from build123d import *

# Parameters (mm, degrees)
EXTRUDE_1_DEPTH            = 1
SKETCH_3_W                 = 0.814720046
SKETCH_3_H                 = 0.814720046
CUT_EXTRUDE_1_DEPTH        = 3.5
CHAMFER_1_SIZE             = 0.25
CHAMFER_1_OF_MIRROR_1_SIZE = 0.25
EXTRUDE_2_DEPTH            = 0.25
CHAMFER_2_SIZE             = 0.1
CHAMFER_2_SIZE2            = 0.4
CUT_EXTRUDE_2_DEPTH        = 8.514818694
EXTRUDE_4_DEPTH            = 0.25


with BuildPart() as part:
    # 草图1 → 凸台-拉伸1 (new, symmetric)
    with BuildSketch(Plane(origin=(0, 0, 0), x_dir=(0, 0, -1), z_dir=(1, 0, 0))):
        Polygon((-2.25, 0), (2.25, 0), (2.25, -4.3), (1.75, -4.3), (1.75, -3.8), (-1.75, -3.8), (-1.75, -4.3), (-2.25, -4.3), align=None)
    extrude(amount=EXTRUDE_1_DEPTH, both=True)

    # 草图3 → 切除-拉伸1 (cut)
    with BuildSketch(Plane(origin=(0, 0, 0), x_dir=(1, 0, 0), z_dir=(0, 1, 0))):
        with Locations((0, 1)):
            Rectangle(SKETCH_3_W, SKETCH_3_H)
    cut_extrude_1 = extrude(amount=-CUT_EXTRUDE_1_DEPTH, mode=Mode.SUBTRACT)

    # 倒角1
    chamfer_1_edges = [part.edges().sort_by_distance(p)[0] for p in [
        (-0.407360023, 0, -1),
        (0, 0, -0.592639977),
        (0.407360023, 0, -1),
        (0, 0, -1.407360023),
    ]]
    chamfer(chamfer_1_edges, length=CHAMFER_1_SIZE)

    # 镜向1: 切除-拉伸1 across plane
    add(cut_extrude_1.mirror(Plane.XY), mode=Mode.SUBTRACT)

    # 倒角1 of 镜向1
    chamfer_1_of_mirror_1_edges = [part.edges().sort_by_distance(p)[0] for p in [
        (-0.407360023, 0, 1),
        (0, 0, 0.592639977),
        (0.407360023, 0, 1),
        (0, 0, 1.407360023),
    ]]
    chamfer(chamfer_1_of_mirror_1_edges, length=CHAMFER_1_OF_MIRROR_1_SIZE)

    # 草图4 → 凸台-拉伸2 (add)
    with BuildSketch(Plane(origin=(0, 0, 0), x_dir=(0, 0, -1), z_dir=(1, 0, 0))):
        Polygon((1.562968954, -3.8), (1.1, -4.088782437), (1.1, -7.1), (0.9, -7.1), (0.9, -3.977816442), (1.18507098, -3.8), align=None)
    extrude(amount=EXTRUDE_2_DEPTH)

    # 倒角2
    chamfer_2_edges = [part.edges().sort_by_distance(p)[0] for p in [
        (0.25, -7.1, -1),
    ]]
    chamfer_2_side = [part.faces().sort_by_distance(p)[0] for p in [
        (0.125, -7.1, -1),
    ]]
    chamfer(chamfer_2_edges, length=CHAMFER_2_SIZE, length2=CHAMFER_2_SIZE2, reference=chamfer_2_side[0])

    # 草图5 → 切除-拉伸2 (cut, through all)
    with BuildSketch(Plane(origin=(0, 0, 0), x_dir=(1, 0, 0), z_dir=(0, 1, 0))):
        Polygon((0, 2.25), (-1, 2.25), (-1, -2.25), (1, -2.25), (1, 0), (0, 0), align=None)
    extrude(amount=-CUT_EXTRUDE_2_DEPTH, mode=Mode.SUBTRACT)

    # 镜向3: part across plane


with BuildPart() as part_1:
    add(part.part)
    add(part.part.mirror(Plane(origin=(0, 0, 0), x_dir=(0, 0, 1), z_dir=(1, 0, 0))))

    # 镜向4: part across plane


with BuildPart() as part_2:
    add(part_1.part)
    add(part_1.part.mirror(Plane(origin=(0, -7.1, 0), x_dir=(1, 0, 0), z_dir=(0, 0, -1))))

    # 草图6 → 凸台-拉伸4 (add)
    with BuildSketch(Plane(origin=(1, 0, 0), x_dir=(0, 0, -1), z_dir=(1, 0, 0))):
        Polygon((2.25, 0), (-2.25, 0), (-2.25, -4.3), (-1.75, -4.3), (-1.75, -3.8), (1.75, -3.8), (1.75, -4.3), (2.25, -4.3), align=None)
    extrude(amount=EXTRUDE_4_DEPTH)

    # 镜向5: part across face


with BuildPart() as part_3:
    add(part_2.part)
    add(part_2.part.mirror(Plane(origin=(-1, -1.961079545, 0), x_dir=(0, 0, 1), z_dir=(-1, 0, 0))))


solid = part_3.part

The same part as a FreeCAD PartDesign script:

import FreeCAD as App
import Part
import Sketcher

V = App.Vector
Q = App.Units.Quantity


def edges_at(feature, points):
    """Names of the edges that pass closest to the given points."""
    edges = feature.Shape.Edges
    near = lambda p: min(range(len(edges)), key=lambda i: edges[i].distToShape(Part.Vertex(*p))[0])
    return sorted({f"Edge{near(p) + 1}" for p in points})

doc = App.newDocument("Part")
body = doc.addObject("PartDesign::Body", "Body")

# Sketch on YZ plane
sketch1 = doc.addObject("Sketcher::SketchObject", "Sketch")
body.addObject(sketch1)
sketch1.AttachmentSupport = (doc.YZ_Plane, [""])
sketch1.MapMode = "FlatFace"
sketch1.addGeometry([
    Part.LineSegment(V(0, -2.2, 0), V(0, 2.2, 0)),  # 0
    Part.LineSegment(V(0, 2.2, 0), V(-4.3, 2.2, 0)),  # 1
    Part.LineSegment(V(-4.3, 2.2, 0), V(-4.3, 1.8, 0)),  # 2
    Part.LineSegment(V(-4.3, 1.8, 0), V(-3.8, 1.8, 0)),  # 3
    Part.LineSegment(V(-3.8, 1.8, 0), V(-3.8, -1.8, 0)),  # 4
    Part.LineSegment(V(-3.8, -1.8, 0), V(-4.3, -1.8, 0)),  # 5
    Part.LineSegment(V(-4.3, -1.8, 0), V(-4.3, -2.2, 0)),  # 6
    Part.LineSegment(V(-4.3, -2.2, 0), V(0, -2.2, 0)),  # 7
], False)
sketch1.addConstraint([
    Sketcher.Constraint("Coincident", 0, 2, 1, 1),
    Sketcher.Constraint("Coincident", 1, 2, 2, 1),
    Sketcher.Constraint("Coincident", 2, 2, 3, 1),
    Sketcher.Constraint("Coincident", 3, 2, 4, 1),
    Sketcher.Constraint("Coincident", 4, 2, 5, 1),
    Sketcher.Constraint("Coincident", 5, 2, 6, 1),
    Sketcher.Constraint("Coincident", 6, 2, 7, 1),
    Sketcher.Constraint("Coincident", 7, 2, 0, 1),
    Sketcher.Constraint("Vertical", 0),
    Sketcher.Constraint("Horizontal", 1),
    Sketcher.Constraint("Vertical", 2),
    Sketcher.Constraint("Horizontal", 3),
    Sketcher.Constraint("Vertical", 4),
    Sketcher.Constraint("Horizontal", 5),
    Sketcher.Constraint("Vertical", 6),
    Sketcher.Constraint("Horizontal", 7),
    Sketcher.Constraint("Symmetric", 0, 2, 7, 2, -1, 1),
    Sketcher.Constraint("Symmetric", 2, 2, 5, 2, -1),
    Sketcher.Constraint("Equal", 5, 2),
    Sketcher.Constraint("DistanceX", 1, 2, 1, 1, Q("4.3 mm")),
    Sketcher.Constraint("DistanceX", 3, 1, 3, 2, Q("0.5 mm")),
    Sketcher.Constraint("DistanceY", 0, 1, 0, 2, Q("4.5 mm")),
])
pad1 = doc.addObject("PartDesign::Pad", "Pad")
body.addObject(pad1)
pad1.Profile = sketch1
pad1.Length = 2
pad1.Midplane = True

# Sketch on XZ plane
sketch2 = doc.addObject("Sketcher::SketchObject", "Sketch001")
body.addObject(sketch2)
sketch2.AttachmentSupport = (doc.XZ_Plane, [""])
sketch2.MapMode = "FlatFace"
sketch2.addGeometry([
    Part.LineSegment(V(-0.4, -1.4, 0), V(-0.4, -0.6, 0)),
    Part.LineSegment(V(-0.4, -0.6, 0), V(0.4, -0.6, 0)),
    Part.LineSegment(V(0.4, -0.6, 0), V(0.4, -1.4, 0)),
    Part.LineSegment(V(0.4, -1.4, 0), V(-0.4, -1.4, 0)),
], False)
sketch2.addConstraint([
    Sketcher.Constraint("Coincident", 0, 2, 1, 1),
    Sketcher.Constraint("Coincident", 1, 2, 2, 1),
    Sketcher.Constraint("Coincident", 2, 2, 3, 1),
    Sketcher.Constraint("Coincident", 3, 2, 0, 1),
    Sketcher.Constraint("Vertical", 0),
    Sketcher.Constraint("Horizontal", 1),
    Sketcher.Constraint("Vertical", 2),
    Sketcher.Constraint("Horizontal", 3),
    Sketcher.Constraint("Equal", 3, 0),
    Sketcher.Constraint("DistanceX", 1, 1, 1, 2, Q("0.81472 mm")),
    Sketcher.Constraint("DistanceX", 0, 2, -1, 1, Q("0.40736 mm")),
    Sketcher.Constraint("DistanceY", 0, 2, -1, 1, Q("0.59264 mm")),
])
pocket1 = doc.addObject("PartDesign::Pocket", "Pocket")
body.addObject(pocket1)
pocket1.Profile = sketch2
pocket1.Length = 3.5
pocket1.Reversed = True
doc.recompute()

chamfer = doc.addObject("PartDesign::Chamfer", "Chamfer")
body.addObject(chamfer)
chamfer.Base = (pocket1, edges_at(pocket1, [
    (-0.407, 0, -1),
    (0, 0, -0.593),
    (0.407, 0, -1),
    (0, 0, -1.407),
]))
chamfer.Size = 0.25
doc.recompute()

mirrored = doc.addObject("PartDesign::Mirrored", "Mirrored")
body.addObject(mirrored)
mirrored.Originals = [pocket1]
mirrored.MirrorPlane = (doc.XY_Plane, [""])
body.Tip = mirrored
doc.recompute()

chamfer2 = doc.addObject("PartDesign::Chamfer", "Chamfer001")
body.addObject(chamfer2)
chamfer2.Base = (mirrored, edges_at(mirrored, [
    (-0.407, 0, 1),
    (0, 0, 0.593),
    (0.407, 0, 1),
    (0, 0, 1.407),
]))
chamfer2.Size = 0.25

# Sketch on YZ plane
sketch3 = doc.addObject("Sketcher::SketchObject", "Sketch002")
body.addObject(sketch3)
sketch3.AttachmentSupport = (doc.YZ_Plane, [""])
sketch3.MapMode = "FlatFace"
sketch3.addGeometry([
    Part.LineSegment(V(-4.09, -1.1, 0), V(-3.8, -1.56, 0)),  # 0
    Part.LineSegment(V(-3.8, -1.56, 0), V(-3.8, -1.19, 0)),  # 1
    Part.LineSegment(V(-3.8, -1.19, 0), V(-3.98, -0.9, 0)),  # 2
    Part.LineSegment(V(-3.98, -0.9, 0), V(-7.1, -0.9, 0)),  # 3
    Part.LineSegment(V(-7.1, -0.9, 0), V(-7.1, -1.1, 0)),  # 4
    Part.LineSegment(V(-7.1, -1.1, 0), V(-4.09, -1.1, 0)),  # 5
], False)
sketch3.addConstraint([
    Sketcher.Constraint("Coincident", 0, 2, 1, 1),
    Sketcher.Constraint("Coincident", 1, 2, 2, 1),
    Sketcher.Constraint("Coincident", 2, 2, 3, 1),
    Sketcher.Constraint("Coincident", 3, 2, 4, 1),
    Sketcher.Constraint("Coincident", 4, 2, 5, 1),
    Sketcher.Constraint("Coincident", 5, 2, 0, 1),
    Sketcher.Constraint("Vertical", 1),
    Sketcher.Constraint("Horizontal", 3),
    Sketcher.Constraint("Vertical", 4),
    Sketcher.Constraint("Horizontal", 5),
    Sketcher.Constraint("Parallel", 0, 2),
    Sketcher.Constraint("DistanceY", 4, 2, 4, 1, Q("0.2 mm")),
    Sketcher.Constraint("DistanceX", 0, 2, -1, 1, Q("3.8 mm")),
    Sketcher.Constraint("DistanceY", 2, 2, -1, 1, Q("0.9 mm")),
    Sketcher.Constraint("DistanceX", 3, 2, -1, 1, Q("7.1 mm")),
    Sketcher.Constraint("Distance", 0, Q("0.545651 mm")),
    Sketcher.Constraint("DistanceX", 3, 2, 3, 1, Q("3.122184 mm")),
    Sketcher.Constraint("DistanceX", 5, 1, 5, 2, Q("3.011218 mm")),
])
pad2 = doc.addObject("PartDesign::Pad", "Pad001")
body.addObject(pad2)
pad2.Profile = sketch3
pad2.Length = 0.25
doc.recompute()

chamfer3 = doc.addObject("PartDesign::Chamfer", "Chamfer002")
body.addObject(chamfer3)
chamfer3.Base = (pad2, edges_at(pad2, [(0.25, -7.1, -1)]))
chamfer3.ChamferType = "Two distances"
chamfer3.Size = 0.1
chamfer3.Size2 = 0.4
chamfer3.FlipDirection = True

# Sketch on XZ plane
sketch4 = doc.addObject("Sketcher::SketchObject", "Sketch003")
body.addObject(sketch4)
sketch4.AttachmentSupport = (doc.XZ_Plane, [""])
sketch4.MapMode = "FlatFace"
sketch4.addGeometry([
    Part.LineSegment(V(0, -2.2, 0), V(-1, -2.2, 0)),  # 0
    Part.LineSegment(V(-1, -2.2, 0), V(-1, 2.2, 0)),  # 1
    Part.LineSegment(V(-1, 2.2, 0), V(1, 2.2, 0)),  # 2
    Part.LineSegment(V(1, 2.2, 0), V(1, 0, 0)),  # 3
    Part.LineSegment(V(1, 0, 0), V(0, 0, 0)),  # 4
    Part.LineSegment(V(0, 0, 0), V(0, -2.2, 0)),  # 5
], False)
sketch4.addConstraint([
    Sketcher.Constraint("Coincident", 0, 2, 1, 1),
    Sketcher.Constraint("Coincident", 1, 2, 2, 1),
    Sketcher.Constraint("Coincident", 2, 2, 3, 1),
    Sketcher.Constraint("Coincident", 3, 2, 4, 1),
    Sketcher.Constraint("Coincident", 4, 2, 5, 1),
    Sketcher.Constraint("Coincident", 5, 2, 0, 1),
    Sketcher.Constraint("Horizontal", 0),
    Sketcher.Constraint("Vertical", 1),
    Sketcher.Constraint("Horizontal", 2),
    Sketcher.Constraint("Vertical", 3),
    Sketcher.Constraint("Horizontal", 4),
    Sketcher.Constraint("Vertical", 5),
    Sketcher.Constraint("Coincident", 4, 2, -1, 1),
    Sketcher.Constraint("Symmetric", 0, 2, 2, 2, -1, 1),
    Sketcher.Constraint("DistanceX", 0, 2, 0, 1, Q("1 mm")),
    Sketcher.Constraint("DistanceY", 1, 1, 1, 2, Q("4.5 mm")),
])
pocket2 = doc.addObject("PartDesign::Pocket", "Pocket001")
body.addObject(pocket2)
pocket2.Profile = sketch4
pocket2.Type = "ThroughAll"
pocket2.Reversed = True
body2 = doc.addObject("PartDesign::Body", "Body001")
doc.recompute()

body2.BaseFeature = body
doc.recompute()

mirroring = doc.addObject("Part::Mirroring", "Mirroring")
mirroring.Source = body
mirroring.Base = V(0, 0, 0)
mirroring.Normal = V(1, 0, 0)
body3 = doc.addObject("PartDesign::Body", "Body002")
body3.BaseFeature = mirroring
boolean = doc.addObject("PartDesign::Boolean", "Boolean")
body2.addObject(boolean)
boolean.Type = "Fuse"
boolean.addObjects([body3])
doc.recompute()
body4 = doc.addObject("PartDesign::Body", "Body003")
doc.recompute()

body4.BaseFeature = body2
doc.recompute()

mirroring2 = doc.addObject("Part::Mirroring", "Mirroring001")
mirroring2.Source = body2
mirroring2.Base = V(0, -7.1, 0)
mirroring2.Normal = V(0, 0, -1)
body5 = doc.addObject("PartDesign::Body", "Body004")
body5.BaseFeature = mirroring2
boolean2 = doc.addObject("PartDesign::Boolean", "Boolean001")
body4.addObject(boolean2)
boolean2.Type = "Fuse"
boolean2.addObjects([body5])
doc.recompute()

# Sketch on YZ plane
sketch5 = doc.addObject("Sketcher::SketchObject", "Sketch004")
body4.addObject(sketch5)
sketch5.AttachmentSupport = (doc.getObject("YZ_Plane003"), [""])
sketch5.MapMode = "FlatFace"
sketch5.AttachmentOffset = App.Placement(V(0, 0, 1), App.Rotation())
sketch5.addGeometry([
    Part.LineSegment(V(0, -2.2, 0), V(0, 2.2, 0)),  # 0
    Part.LineSegment(V(0, 2.2, 0), V(-4.3, 2.2, 0)),  # 1
    Part.LineSegment(V(-4.3, 2.2, 0), V(-4.3, 1.8, 0)),  # 2
    Part.LineSegment(V(-4.3, 1.8, 0), V(-3.8, 1.8, 0)),  # 3
    Part.LineSegment(V(-3.8, 1.8, 0), V(-3.8, -1.8, 0)),  # 4
    Part.LineSegment(V(-3.8, -1.8, 0), V(-4.3, -1.8, 0)),  # 5
    Part.LineSegment(V(-4.3, -1.8, 0), V(-4.3, -2.2, 0)),  # 6
    Part.LineSegment(V(-4.3, -2.2, 0), V(0, -2.2, 0)),  # 7
], False)
sketch5.addConstraint([
    Sketcher.Constraint("Coincident", 0, 2, 1, 1),
    Sketcher.Constraint("Coincident", 1, 2, 2, 1),
    Sketcher.Constraint("Coincident", 2, 2, 3, 1),
    Sketcher.Constraint("Coincident", 3, 2, 4, 1),
    Sketcher.Constraint("Coincident", 4, 2, 5, 1),
    Sketcher.Constraint("Coincident", 5, 2, 6, 1),
    Sketcher.Constraint("Coincident", 6, 2, 7, 1),
    Sketcher.Constraint("Coincident", 7, 2, 0, 1),
    Sketcher.Constraint("Vertical", 0),
    Sketcher.Constraint("Horizontal", 1),
    Sketcher.Constraint("Vertical", 2),
    Sketcher.Constraint("Horizontal", 3),
    Sketcher.Constraint("Vertical", 4),
    Sketcher.Constraint("Horizontal", 5),
    Sketcher.Constraint("Vertical", 6),
    Sketcher.Constraint("Horizontal", 7),
    Sketcher.Constraint("Symmetric", 0, 2, 7, 2, -1, 1),
    Sketcher.Constraint("Symmetric", 2, 2, 5, 2, -1),
    Sketcher.Constraint("Equal", 5, 2),
    Sketcher.Constraint("DistanceX", 1, 2, 1, 1, Q("4.3 mm")),
    Sketcher.Constraint("DistanceX", 3, 1, 3, 2, Q("0.5 mm")),
    Sketcher.Constraint("DistanceY", 0, 1, 0, 2, Q("4.5 mm")),
])
pad3 = doc.addObject("PartDesign::Pad", "Pad002")
body4.addObject(pad3)
pad3.Profile = sketch5
pad3.Length = 0.25
body6 = doc.addObject("PartDesign::Body", "Body005")
doc.recompute()

body6.BaseFeature = body4
doc.recompute()

mirroring3 = doc.addObject("Part::Mirroring", "Mirroring002")
mirroring3.Source = body4
mirroring3.Base = V(-1, -1.96108, 0)
mirroring3.Normal = V(-1, 0, 0)
body7 = doc.addObject("PartDesign::Body", "Body006")
body7.BaseFeature = mirroring3
boolean3 = doc.addObject("PartDesign::Boolean", "Boolean002")
body6.addObject(boolean3)
boolean3.Type = "Fuse"
boolean3.addObjects([body7])
doc.recompute()
mirroring.Visibility = False
mirroring2.Visibility = False
mirroring3.Visibility = False

doc.recompute()
